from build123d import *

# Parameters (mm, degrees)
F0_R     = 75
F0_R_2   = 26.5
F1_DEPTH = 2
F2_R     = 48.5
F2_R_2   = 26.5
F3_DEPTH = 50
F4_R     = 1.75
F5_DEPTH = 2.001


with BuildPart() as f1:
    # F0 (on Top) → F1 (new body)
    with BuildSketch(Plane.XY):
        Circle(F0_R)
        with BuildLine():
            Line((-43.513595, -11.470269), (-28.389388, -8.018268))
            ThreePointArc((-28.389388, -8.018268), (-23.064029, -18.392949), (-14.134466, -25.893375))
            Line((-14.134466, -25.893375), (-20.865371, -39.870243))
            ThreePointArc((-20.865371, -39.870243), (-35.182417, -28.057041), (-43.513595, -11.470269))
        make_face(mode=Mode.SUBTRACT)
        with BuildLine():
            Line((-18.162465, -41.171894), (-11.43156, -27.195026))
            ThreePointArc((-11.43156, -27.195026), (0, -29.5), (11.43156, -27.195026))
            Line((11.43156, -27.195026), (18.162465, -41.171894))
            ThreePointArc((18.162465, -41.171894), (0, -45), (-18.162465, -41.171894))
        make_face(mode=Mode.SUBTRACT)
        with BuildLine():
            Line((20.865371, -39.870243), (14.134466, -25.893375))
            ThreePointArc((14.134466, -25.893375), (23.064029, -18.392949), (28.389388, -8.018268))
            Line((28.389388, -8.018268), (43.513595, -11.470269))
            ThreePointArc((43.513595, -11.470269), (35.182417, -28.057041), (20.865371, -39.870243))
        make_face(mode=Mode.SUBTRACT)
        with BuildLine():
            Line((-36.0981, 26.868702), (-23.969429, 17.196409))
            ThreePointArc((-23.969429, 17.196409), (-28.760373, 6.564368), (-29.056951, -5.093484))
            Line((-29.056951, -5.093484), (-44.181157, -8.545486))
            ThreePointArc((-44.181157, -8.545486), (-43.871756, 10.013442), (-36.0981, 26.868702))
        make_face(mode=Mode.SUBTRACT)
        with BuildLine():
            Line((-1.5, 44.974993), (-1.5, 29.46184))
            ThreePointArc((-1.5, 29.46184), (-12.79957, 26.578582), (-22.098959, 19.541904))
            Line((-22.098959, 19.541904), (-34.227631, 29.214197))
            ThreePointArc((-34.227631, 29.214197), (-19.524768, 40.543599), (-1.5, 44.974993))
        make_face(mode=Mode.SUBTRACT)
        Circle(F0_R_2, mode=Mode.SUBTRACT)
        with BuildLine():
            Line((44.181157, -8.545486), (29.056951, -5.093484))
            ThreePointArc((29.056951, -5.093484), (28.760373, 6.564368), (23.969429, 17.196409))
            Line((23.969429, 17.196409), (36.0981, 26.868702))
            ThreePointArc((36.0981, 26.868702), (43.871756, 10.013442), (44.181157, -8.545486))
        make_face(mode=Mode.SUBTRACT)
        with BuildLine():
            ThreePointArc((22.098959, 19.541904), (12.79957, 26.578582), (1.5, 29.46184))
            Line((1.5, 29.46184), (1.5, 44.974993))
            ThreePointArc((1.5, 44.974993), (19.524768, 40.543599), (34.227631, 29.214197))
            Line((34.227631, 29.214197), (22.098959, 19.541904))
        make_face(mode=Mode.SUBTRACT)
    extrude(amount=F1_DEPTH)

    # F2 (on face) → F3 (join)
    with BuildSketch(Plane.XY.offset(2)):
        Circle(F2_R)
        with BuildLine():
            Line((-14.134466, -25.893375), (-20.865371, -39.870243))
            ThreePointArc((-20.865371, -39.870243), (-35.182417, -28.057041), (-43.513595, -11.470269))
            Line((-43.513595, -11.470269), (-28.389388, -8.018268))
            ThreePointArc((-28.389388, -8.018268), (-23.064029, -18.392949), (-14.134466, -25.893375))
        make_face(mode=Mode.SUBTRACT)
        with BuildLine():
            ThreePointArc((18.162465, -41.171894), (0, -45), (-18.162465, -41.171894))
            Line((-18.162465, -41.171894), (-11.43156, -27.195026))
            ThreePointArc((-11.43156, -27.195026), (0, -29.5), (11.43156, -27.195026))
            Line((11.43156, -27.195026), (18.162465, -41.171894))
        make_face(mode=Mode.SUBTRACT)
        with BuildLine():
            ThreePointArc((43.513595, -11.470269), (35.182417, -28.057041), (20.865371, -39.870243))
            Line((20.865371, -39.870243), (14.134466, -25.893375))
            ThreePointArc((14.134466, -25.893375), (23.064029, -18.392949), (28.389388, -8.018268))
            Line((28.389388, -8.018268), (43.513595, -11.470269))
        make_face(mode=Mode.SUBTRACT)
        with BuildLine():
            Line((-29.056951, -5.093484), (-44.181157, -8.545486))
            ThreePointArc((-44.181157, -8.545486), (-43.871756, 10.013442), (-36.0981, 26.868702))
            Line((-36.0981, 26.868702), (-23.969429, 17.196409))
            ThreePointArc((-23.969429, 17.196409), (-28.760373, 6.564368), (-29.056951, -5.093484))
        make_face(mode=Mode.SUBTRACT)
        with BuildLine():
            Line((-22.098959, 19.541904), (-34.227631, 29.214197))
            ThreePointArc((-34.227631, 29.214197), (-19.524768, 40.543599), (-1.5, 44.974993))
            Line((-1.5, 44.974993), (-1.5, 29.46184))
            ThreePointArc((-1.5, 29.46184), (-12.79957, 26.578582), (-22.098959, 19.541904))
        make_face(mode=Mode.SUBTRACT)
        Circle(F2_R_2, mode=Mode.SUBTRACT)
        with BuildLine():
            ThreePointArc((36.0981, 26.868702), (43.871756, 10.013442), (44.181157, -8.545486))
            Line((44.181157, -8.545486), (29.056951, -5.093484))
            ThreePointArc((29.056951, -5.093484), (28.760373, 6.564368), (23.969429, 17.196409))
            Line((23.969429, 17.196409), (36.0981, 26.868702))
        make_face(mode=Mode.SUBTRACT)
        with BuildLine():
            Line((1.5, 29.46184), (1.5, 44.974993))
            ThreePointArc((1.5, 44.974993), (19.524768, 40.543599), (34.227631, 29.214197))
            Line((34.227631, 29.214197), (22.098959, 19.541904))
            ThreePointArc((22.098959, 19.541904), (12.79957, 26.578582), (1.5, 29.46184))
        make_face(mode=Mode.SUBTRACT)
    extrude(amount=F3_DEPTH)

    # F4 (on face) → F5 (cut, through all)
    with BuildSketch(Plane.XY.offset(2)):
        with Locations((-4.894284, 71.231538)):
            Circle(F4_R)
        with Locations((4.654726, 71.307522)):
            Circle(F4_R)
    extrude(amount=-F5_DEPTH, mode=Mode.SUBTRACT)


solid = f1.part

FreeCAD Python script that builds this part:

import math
import FreeCAD as App
import Part
import Sketcher
Q = App.Units.Quantity

doc = App.newDocument("Part")
body = doc.addObject("PartDesign::Body", "Body")

# Sketch on XY plane
sketch1 = body.newObject("Sketcher::SketchObject", "Sketch")
sketch1.AttachmentSupport = (doc.getObject("XY_Plane"), [""])
sketch1.MapMode = "FlatFace"
sketch1.addGeometry([
    Part.Circle(App.Vector(0, 0, 0), App.Vector(0, 0, 1), 75),  # 0
    Part.ArcOfCircle(Part.Circle(App.Vector(-0.000002, -0.000001, 0), App.Vector(0, 0, 1), 44.999998), math.radians(-165.232645), math.radians(-117.624497)),  # 1
    Part.LineSegment(App.Vector(-43.513595, -11.470269, 0), App.Vector(-28.389388, -8.018268, 0)),  # 2
    Part.ArcOfCircle(Part.Circle(App.Vector(-0.000003, -0.000003, 0), App.Vector(0, 0, 1), 29.499996), math.radians(-164.22826), math.radians(-118.628884)),  # 3
    Part.LineSegment(App.Vector(-14.134466, -25.893375, 0), App.Vector(-20.865371, -39.870243, 0)),  # 4
    Part.ArcOfCircle(Part.Circle(App.Vector(0, -0.000001, 0), App.Vector(0, 0, 1), 44.999999), math.radians(-113.804073), math.radians(-66.195927)),  # 5
    Part.LineSegment(App.Vector(-18.162465, -41.171894, 0), App.Vector(-11.43156, -27.195026, 0)),  # 6
    Part.ArcOfCircle(Part.Circle(App.Vector(0, 0.000001, 0), App.Vector(0, 0, 1), 29.500001), math.radians(-112.799684), math.radians(-67.200316)),  # 7
    Part.LineSegment(App.Vector(11.43156, -27.195026, 0), App.Vector(18.162465, -41.171894, 0)),  # 8
    Part.ArcOfCircle(Part.Circle(App.Vector(0.000002, -0.000001, 0), App.Vector(0, 0, 1), 44.999998), math.radians(-62.375503), math.radians(-14.767355)),  # 9
    Part.LineSegment(App.Vector(20.865371, -39.870243, 0), App.Vector(14.134466, -25.893375, 0)),  # 10
    Part.ArcOfCircle(Part.Circle(App.Vector(0.000003, -0.000003, 0), App.Vector(0, 0, 1), 29.499996), math.radians(-61.371116), math.radians(-15.77174)),  # 11
    Part.LineSegment(App.Vector(28.389388, -8.018268, 0), App.Vector(43.513595, -11.470269, 0)),  # 12
    Part.ArcOfCircle(Part.Circle(App.Vector(-0.000003, 0.000001, 0), App.Vector(0, 0, 1), 44.999996), math.radians(143.338783), math.radians(190.946932)),  # 13
    Part.LineSegment(App.Vector(-36.0981, 26.868702, 0), App.Vector(-23.969429, 17.196409, 0)),  # 14
    Part.ArcOfCircle(Part.Circle(App.Vector(0.000003, 0, 0), App.Vector(0, 0, 1), 29.500002), math.radians(144.343177), math.radians(189.94254)),  # 15
    Part.LineSegment(App.Vector(-29.056951, -5.093484, 0), App.Vector(-44.181157, -8.545486, 0)),  # 16
    Part.ArcOfCircle(Part.Circle(App.Vector(0.000001, -0.000003, 0), App.Vector(0, 0, 1), 45.000003), math.radians(91.910214), math.radians(139.518356)),  # 17
    Part.LineSegment(App.Vector(-1.5, 44.974993, 0), App.Vector(-1.5, 29.46184, 0)),  # 18
    Part.ArcOfCircle(Part.Circle(App.Vector(0, 0.000001, 0), App.Vector(0, 0, 1), 29.499999), math.radians(92.914601), math.radians(138.513971)),  # 19
    Part.LineSegment(App.Vector(-22.098959, 19.541904, 0), App.Vector(-34.227631, 29.214197, 0)),  # 20
    Part.Circle(App.Vector(0, 0, 0), App.Vector(0, 0, 1), 26.5),  # 21
    Part.ArcOfCircle(Part.Circle(App.Vector(0.000003, 0.000001, 0), App.Vector(0, 0, 1), 44.999996), math.radians(-10.946932), math.radians(36.661217)),  # 22
    Part.LineSegment(App.Vector(44.181157, -8.545486, 0), App.Vector(29.056951, -5.093484, 0)),  # 23
    Part.ArcOfCircle(Part.Circle(App.Vector(-0.000003, 0, 0), App.Vector(0, 0, 1), 29.500002), math.radians(-9.94254), math.radians(35.656823)),  # 24
    Part.LineSegment(App.Vector(23.969429, 17.196409, 0), App.Vector(36.0981, 26.868702, 0)),  # 25
    Part.LineSegment(App.Vector(34.227631, 29.214197, 0), App.Vector(22.098959, 19.541904, 0)),  # 26
    Part.ArcOfCircle(Part.Circle(App.Vector(0, 0.000001, 0), App.Vector(0, 0, 1), 29.499999), math.radians(41.486029), math.radians(87.085399)),  # 27
    Part.LineSegment(App.Vector(1.5, 29.46184, 0), App.Vector(1.5, 44.974993, 0)),  # 28
    Part.ArcOfCircle(Part.Circle(App.Vector(-0.000001, -0.000003, 0), App.Vector(0, 0, 1), 45.000003), math.radians(40.481644), math.radians(88.089786)),  # 29
], False)
sketch1.addConstraint([
    Sketcher.Constraint("Coincident", 1, 1, 2, 1),
    Sketcher.Constraint("Coincident", 2, 2, 3, 1),
    Sketcher.Constraint("Coincident", 3, 2, 4, 1),
    Sketcher.Constraint("Coincident", 4, 2, 1, 2),
    Sketcher.Constraint("Coincident", 5, 1, 6, 1),
    Sketcher.Constraint("Coincident", 6, 2, 7, 1),
    Sketcher.Constraint("Coincident", 7, 2, 8, 1),
    Sketcher.Constraint("Coincident", 8, 2, 5, 2),
    Sketcher.Constraint("Coincident", 9, 1, 10, 1),
    Sketcher.Constraint("Coincident", 10, 2, 11, 1),
    Sketcher.Constraint("Coincident", 11, 2, 12, 1),
    Sketcher.Constraint("Coincident", 12, 2, 9, 2),
    Sketcher.Constraint("Coincident", 13, 1, 14, 1),
    Sketcher.Constraint("Coincident", 14, 2, 15, 1),
    Sketcher.Constraint("Coincident", 15, 2, 16, 1),
    Sketcher.Constraint("Coincident", 16, 2, 13, 2),
    Sketcher.Constraint("Coincident", 17, 1, 18, 1),
    Sketcher.Constraint("Coincident", 18, 2, 19, 1),
    Sketcher.Constraint("Coincident", 19, 2, 20, 1),
    Sketcher.Constraint("Coincident", 20, 2, 17, 2),
    Sketcher.Constraint("Coincident", 22, 1, 23, 1),
    Sketcher.Constraint("Coincident", 23, 2, 24, 1),
    Sketcher.Constraint("Coincident", 24, 2, 25, 1),
    Sketcher.Constraint("Coincident", 25, 2, 22, 2),
    Sketcher.Constraint("Coincident", 26, 2, 27, 1),
    Sketcher.Constraint("Coincident", 27, 2, 28, 1),
    Sketcher.Constraint("Coincident", 28, 2, 29, 2),
    Sketcher.Constraint("Coincident", 29, 1, 26, 1),
    Sketcher.Constraint("Vertical", 18),
    Sketcher.Constraint("Vertical", 28),
    Sketcher.Constraint("Coincident", 0, 3, -1, 1),
    Sketcher.Constraint("Coincident", 1, 3, -1, 1),
    Sketcher.Constraint("Coincident", 3, 3, -1, 1),
    Sketcher.Constraint("Coincident", 5, 3, -1, 1),
    Sketcher.Constraint("Coincident", 7, 3, -1, 1),
    Sketcher.Constraint("Coincident", 9, 3, -1, 1),
    Sketcher.Constraint("Coincident", 11, 3, -1, 1),
    Sketcher.Constraint("Coincident", 13, 3, -1, 1),
    Sketcher.Constraint("Coincident", 15, 3, -1, 1),
    Sketcher.Constraint("Coincident", 17, 3, -1, 1),
    Sketcher.Constraint("Coincident", 19, 3, -1, 1),
    Sketcher.Constraint("Coincident", 21, 3, -1, 1),
    Sketcher.Constraint("Coincident", 22, 3, -1, 1),
    Sketcher.Constraint("Coincident", 24, 3, -1, 1),
    Sketcher.Constraint("Coincident", 27, 3, -1, 1),
    Sketcher.Constraint("Coincident", 29, 3, -1, 1),
    Sketcher.Constraint("Diameter", 0, Q("150 mm")),
    Sketcher.Constraint("Diameter", 21, Q("53 mm")),
    Sketcher.Constraint("Radius", 1, Q("44.999998 mm")),
    Sketcher.Constraint("Radius", 5, Q("44.999999 mm")),
    Sketcher.Constraint("Radius", 9, Q("44.999998 mm")),
    Sketcher.Constraint("Radius", 7, Q("29.500001 mm")),
    Sketcher.Constraint("Radius", 19, Q("29.499999 mm")),
    Sketcher.Constraint("Radius", 27, Q("29.499999 mm")),
    Sketcher.Constraint("DistanceX", 18, 2, 27, 2, Q("3 mm")),
    Sketcher.Constraint("DistanceX", 17, 1, -1, 1, Q("1.5 mm")),
    Sketcher.Constraint("Radius", 3, Q("29.499996 mm")),
    Sketcher.Constraint("Radius", 11, Q("29.499996 mm")),
    Sketcher.Constraint("Radius", 13, Q("44.999996 mm")),
    Sketcher.Constraint("Radius", 15, Q("29.500002 mm")),
    Sketcher.Constraint("Radius", 17, Q("45.000003 mm")),
    Sketcher.Constraint("Radius", 22, Q("44.999996 mm")),
    Sketcher.Constraint("Radius", 24, Q("29.500002 mm")),
    Sketcher.Constraint("Radius", 29, Q("45.000003 mm")),
    Sketcher.Constraint("DistanceY", 1, 1, 2, 2, Q("3.452001 mm")),
    Sketcher.Constraint("DistanceX", 5, 1, 3, 2, Q("4.027999 mm")),
    Sketcher.Constraint("DistanceX", 10, 2, 8, 2, Q("4.027999 mm")),
    Sketcher.Constraint("DistanceY", 12, 2, 11, 2, Q("3.452001 mm")),
    Sketcher.Constraint("DistanceY", 16, 2, 15, 2, Q("3.452002 mm")),
    Sketcher.Constraint("DistanceX", 13, 1, -1, 1, Q("36.0981 mm")),
    Sketcher.Constraint("DistanceX", -1, 1, 25, 2, Q("36.0981 mm")),
    Sketcher.Constraint("DistanceX", 24, 2, 29, 1, Q("10.258202 mm")),
    Sketcher.Constraint("DistanceY", 1, 1, -1, 1, Q("11.470269 mm")),
    Sketcher.Constraint("DistanceX", 4, 2, -1, 1, Q("20.865371 mm")),
    Sketcher.Constraint("DistanceX", 6, 2, -1, 1, Q("11.43156 mm")),
    Sketcher.Constraint("DistanceX", -1, 1, 7, 2, Q("11.43156 mm")),
    Sketcher.Constraint("DistanceX", -1, 1, 9, 1, Q("20.865371 mm")),
    Sketcher.Constraint("DistanceX", -1, 1, 11, 2, Q("28.389388 mm")),
    Sketcher.Constraint("DistanceX", 14, 2, -1, 1, Q("23.969429 mm")),
    Sketcher.Constraint("DistanceX", 15, 2, -1, 1, Q("29.056951 mm")),
    Sketcher.Constraint("DistanceX", 19, 2, -1, 1, Q("22.098959 mm")),
    Sketcher.Constraint("DistanceX", 20, 2, -1, 1, Q("34.227631 mm")),
    Sketcher.Constraint("DistanceX", -1, 1, 23, 2, Q("29.056951 mm")),
    Sketcher.Constraint("DistanceX", -1, 1, 24, 2, Q("23.969429 mm")),
    Sketcher.Constraint("DistanceX", -1, 1, 26, 2, Q("22.098959 mm")),
    Sketcher.Constraint("DistanceX", 2, 2, 3, 2, Q("14.254922 mm")),
    Sketcher.Constraint("DistanceY", 8, 2, 6, 2, Q("13.976868 mm")),
    Sketcher.Constraint("DistanceX", 11, 2, 22, 1, Q("15.791769 mm")),
])
pad1 = body.newObject("PartDesign::Pad", "Pad")
pad1.Profile = sketch1
pad1.Length = 2

# Sketch on XY plane
sketch2 = body.newObject("Sketcher::SketchObject", "Sketch001")
sketch2.AttachmentSupport = (doc.getObject("XY_Plane"), [""])
sketch2.MapMode = "FlatFace"
sketch2.AttachmentOffset = App.Placement(App.Vector(0, 0, 2), App.Rotation())
sketch2.addGeometry([
    Part.Circle(App.Vector(0, 0, 0), App.Vector(0, 0, 1), 48.5),  # 0
    Part.ArcOfCircle(Part.Circle(App.Vector(-0.000003, -0.000003, 0), App.Vector(0, 0, 1), 29.499996), math.radians(-164.22826), math.radians(-118.628884)),  # 1
    Part.LineSegment(App.Vector(-14.134466, -25.893375, 0), App.Vector(-20.865371, -39.870243, 0)),  # 2
    Part.ArcOfCircle(Part.Circle(App.Vector(-0.000002, -0.000001, 0), App.Vector(0, 0, 1), 44.999998), math.radians(-165.232645), math.radians(-117.624497)),  # 3
    Part.LineSegment(App.Vector(-43.513595, -11.470269, 0), App.Vector(-28.389388, -8.018268, 0)),  # 4
    Part.LineSegment(App.Vector(11.43156, -27.195026, 0), App.Vector(18.162465, -41.171894, 0)),  # 5
    Part.ArcOfCircle(Part.Circle(App.Vector(0, -0.000001, 0), App.Vector(0, 0, 1), 44.999999), math.radians(-113.804073), math.radians(-66.195927)),  # 6
    Part.LineSegment(App.Vector(-18.162465, -41.171894, 0), App.Vector(-11.43156, -27.195026, 0)),  # 7
    Part.ArcOfCircle(Part.Circle(App.Vector(0, 0.000001, 0), App.Vector(0, 0, 1), 29.500001), math.radians(-112.799684), math.radians(-67.200316)),  # 8
    Part.LineSegment(App.Vector(28.389388, -8.018268, 0), App.Vector(43.513595, -11.470269, 0)),  # 9
    Part.ArcOfCircle(Part.Circle(App.Vector(0.000002, -0.000001, 0), App.Vector(0, 0, 1), 44.999998), math.radians(-62.375503), math.radians(-14.767355)),  # 10
    Part.LineSegment(App.Vector(20.865371, -39.870243, 0), App.Vector(14.134466, -25.893375, 0)),  # 11
    Part.ArcOfCircle(Part.Circle(App.Vector(0.000003, -0.000003, 0), App.Vector(0, 0, 1), 29.499996), math.radians(-61.371116), math.radians(-15.77174)),  # 12
    Part.ArcOfCircle(Part.Circle(App.Vector(0.000003, 0, 0), App.Vector(0, 0, 1), 29.500002), math.radians(144.343177), math.radians(189.94254)),  # 13
    Part.LineSegment(App.Vector(-29.056951, -5.093484, 0), App.Vector(-44.181157, -8.545486, 0)),  # 14
    Part.ArcOfCircle(Part.Circle(App.Vector(-0.000003, 0.000001, 0), App.Vector(0, 0, 1), 44.999996), math.radians(143.338783), math.radians(190.946932)),  # 15
    Part.LineSegment(App.Vector(-36.0981, 26.868702, 0), App.Vector(-23.969429, 17.196409, 0)),  # 16
    Part.ArcOfCircle(Part.Circle(App.Vector(0, 0.000001, 0), App.Vector(0, 0, 1), 29.499999), math.radians(92.914601), math.radians(138.513971)),  # 17
    Part.LineSegment(App.Vector(-22.098959, 19.541904, 0), App.Vector(-34.227631, 29.214197, 0)),  # 18
    Part.ArcOfCircle(Part.Circle(App.Vector(0.000001, -0.000003, 0), App.Vector(0, 0, 1), 45.000003), math.radians(91.910214), math.radians(139.518356)),  # 19
    Part.LineSegment(App.Vector(-1.5, 44.974993, 0), App.Vector(-1.5, 29.46184, 0)),  # 20
    Part.Circle(App.Vector(0, 0, 0), App.Vector(0, 0, 1), 26.5),  # 21
    Part.LineSegment(App.Vector(23.969429, 17.196409, 0), App.Vector(36.0981, 26.868702, 0)),  # 22
    Part.ArcOfCircle(Part.Circle(App.Vector(0.000003, 0.000001, 0), App.Vector(0, 0, 1), 44.999996), math.radians(-10.946932), math.radians(36.661217)),  # 23
    Part.LineSegment(App.Vector(44.181157, -8.545486, 0), App.Vector(29.056951, -5.093484, 0)),  # 24
    Part.ArcOfCircle(Part.Circle(App.Vector(-0.000003, 0, 0), App.Vector(0, 0, 1), 29.500002), math.radians(-9.94254), math.radians(35.656823)),  # 25
    Part.ArcOfCircle(Part.Circle(App.Vector(0, 0.000001, 0), App.Vector(0, 0, 1), 29.499999), math.radians(41.486029), math.radians(87.085399)),  # 26
    Part.LineSegment(App.Vector(1.5, 29.46184, 0), App.Vector(1.5, 44.974993, 0)),  # 27
    Part.ArcOfCircle(Part.Circle(App.Vector(-0.000001, -0.000003, 0), App.Vector(0, 0, 1), 45.000003), math.radians(40.481644), math.radians(88.089786)),  # 28
    Part.LineSegment(App.Vector(34.227631, 29.214197, 0), App.Vector(22.098959, 19.541904, 0)),  # 29
], False)
sketch2.addConstraint([
    Sketcher.Constraint("Coincident", 1, 2, 2, 1),
    Sketcher.Constraint("Coincident", 2, 2, 3, 2),
    Sketcher.Constraint("Coincident", 3, 1, 4, 1),
    Sketcher.Constraint("Coincident", 4, 2, 1, 1),
    Sketcher.Constraint("Coincident", 5, 2, 6, 2),
    Sketcher.Constraint("Coincident", 6, 1, 7, 1),
    Sketcher.Constraint("Coincident", 7, 2, 8, 1),
    Sketcher.Constraint("Coincident", 8, 2, 5, 1),
    Sketcher.Constraint("Coincident", 9, 2, 10, 2),
    Sketcher.Constraint("Coincident", 10, 1, 11, 1),
    Sketcher.Constraint("Coincident", 11, 2, 12, 1),
    Sketcher.Constraint("Coincident", 12, 2, 9, 1),
    Sketcher.Constraint("Coincident", 13, 2, 14, 1),
    Sketcher.Constraint("Coincident", 14, 2, 15, 2),
    Sketcher.Constraint("Coincident", 15, 1, 16, 1),
    Sketcher.Constraint("Coincident", 16, 2, 13, 1),
    Sketcher.Constraint("Coincident", 17, 2, 18, 1),
    Sketcher.Constraint("Coincident", 18, 2, 19, 2),
    Sketcher.Constraint("Coincident", 19, 1, 20, 1),
    Sketcher.Constraint("Coincident", 20, 2, 17, 1),
    Sketcher.Constraint("Coincident", 22, 2, 23, 2),
    Sketcher.Constraint("Coincident", 23, 1, 24, 1),
    Sketcher.Constraint("Coincident", 24, 2, 25, 1),
    Sketcher.Constraint("Coincident", 25, 2, 22, 1),
    Sketcher.Constraint("Coincident", 26, 2, 27, 1),
    Sketcher.Constraint("Coincident", 27, 2, 28, 2),
    Sketcher.Constraint("Coincident", 28, 1, 29, 1),
    Sketcher.Constraint("Coincident", 29, 2, 26, 1),
    Sketcher.Constraint("Vertical", 20),
    Sketcher.Constraint("Vertical", 27),
    Sketcher.Constraint("Coincident", 0, 3, -1, 1),
    Sketcher.Constraint("Coincident", 1, 3, -1, 1),
    Sketcher.Constraint("Coincident", 3, 3, -1, 1),
    Sketcher.Constraint("Coincident", 6, 3, -1, 1),
    Sketcher.Constraint("Coincident", 8, 3, -1, 1),
    Sketcher.Constraint("Coincident", 10, 3, -1, 1),
    Sketcher.Constraint("Coincident", 12, 3, -1, 1),
    Sketcher.Constraint("Coincident", 13, 3, -1, 1),
    Sketcher.Constraint("Coincident", 15, 3, -1, 1),
    Sketcher.Constraint("Coincident", 17, 3, -1, 1),
    Sketcher.Constraint("Coincident", 19, 3, -1, 1),
    Sketcher.Constraint("Coincident", 21, 3, -1, 1),
    Sketcher.Constraint("Coincident", 23, 3, -1, 1),
    Sketcher.Constraint("Coincident", 25, 3, -1, 1),
    Sketcher.Constraint("Coincident", 26, 3, -1, 1),
    Sketcher.Constraint("Coincident", 28, 3, -1, 1),
    Sketcher.Constraint("Diameter", 0, Q("97 mm")),
    Sketcher.Constraint("Diameter", 21, Q("53 mm")),
    Sketcher.Constraint("Radius", 3, Q("44.999998 mm")),
    Sketcher.Constraint("Radius", 6, Q("44.999999 mm")),
    Sketcher.Constraint("Radius", 10, Q("44.999998 mm")),
    Sketcher.Constraint("Radius", 8, Q("29.500001 mm")),
    Sketcher.Constraint("Radius", 17, Q("29.499999 mm")),
    Sketcher.Constraint("Radius", 26, Q("29.499999 mm")),
    Sketcher.Constraint("DistanceX", 20, 2, 26, 2, Q("3 mm")),
    Sketcher.Constraint("DistanceX", 19, 1, -1, 1, Q("1.5 mm")),
    Sketcher.Constraint("Radius", 1, Q("29.499996 mm")),
    Sketcher.Constraint("Radius", 12, Q("29.499996 mm")),
    Sketcher.Constraint("Radius", 13, Q("29.500002 mm")),
    Sketcher.Constraint("Radius", 15, Q("44.999996 mm")),
    Sketcher.Constraint("Radius", 19, Q("45.000003 mm")),
    Sketcher.Constraint("Radius", 23, Q("44.999996 mm")),
    Sketcher.Constraint("Radius", 25, Q("29.500002 mm")),
    Sketcher.Constraint("Radius", 28, Q("45.000003 mm")),
    Sketcher.Constraint("DistanceY", 3, 1, 4, 2, Q("3.452001 mm")),
    Sketcher.Constraint("DistanceX", 6, 1, 1, 2, Q("4.027999 mm")),
    Sketcher.Constraint("DistanceX", 11, 2, 5, 2, Q("4.027999 mm")),
    Sketcher.Constraint("DistanceY", 9, 2, 12, 2, Q("3.452001 mm")),
    Sketcher.Constraint("DistanceY", 14, 2, 13, 2, Q("3.452002 mm")),
    Sketcher.Constraint("DistanceX", 15, 1, -1, 1, Q("36.0981 mm")),
    Sketcher.Constraint("DistanceX", -1, 1, 22, 2, Q("36.0981 mm")),
    Sketcher.Constraint("DistanceX", 25, 2, 28, 1, Q("10.258202 mm")),
    Sketcher.Constraint("DistanceX", 2, 2, -1, 1, Q("20.865371 mm")),
    Sketcher.Constraint("DistanceY", 3, 1, -1, 1, Q("11.470269 mm")),
    Sketcher.Constraint("DistanceX", 7, 2, -1, 1, Q("11.43156 mm")),
    Sketcher.Constraint("DistanceX", -1, 1, 8, 2, Q("11.43156 mm")),
    Sketcher.Constraint("DistanceY", 9, 2, -1, 1, Q("11.470269 mm")),
    Sketcher.Constraint("DistanceX", -1, 1, 10, 1, Q("20.865371 mm")),
    Sketcher.Constraint("DistanceX", 13, 2, -1, 1, Q("29.056951 mm")),
    Sketcher.Constraint("DistanceX", 16, 2, -1, 1, Q("23.969429 mm")),
    Sketcher.Constraint("DistanceX", 17, 2, -1, 1, Q("22.098959 mm")),
    Sketcher.Constraint("DistanceX", 18, 2, -1, 1, Q("34.227631 mm")),
    Sketcher.Constraint("DistanceX", -1, 1, 24, 2, Q("29.056951 mm")),
    Sketcher.Constraint("DistanceX", -1, 1, 25, 2, Q("23.969429 mm")),
    Sketcher.Constraint("DistanceX", -1, 1, 29, 2, Q("22.098959 mm")),
    Sketcher.Constraint("DistanceY", 1, 2, 1, 3, Q("25.893372 mm")),
    Sketcher.Constraint("DistanceX", 1, 2, 5, 2, Q("32.296931 mm")),
    Sketcher.Constraint("DistanceX", 12, 2, 23, 1, Q("15.791769 mm")),
])
pad2 = body.newObject("PartDesign::Pad", "Pad001")
pad2.Profile = sketch2
pad2.Length = 50

# Sketch on XY plane
sketch3 = body.newObject("Sketcher::SketchObject", "Sketch002")
sketch3.AttachmentSupport = (doc.getObject("XY_Plane"), [""])
sketch3.MapMode = "FlatFace"
sketch3.AttachmentOffset = App.Placement(App.Vector(0, 0, 2), App.Rotation())
sketch3.addGeometry([
    Part.Circle(App.Vector(-4.9, 71.2, 0), App.Vector(0, 0, 1), 1.8),
    Part.Circle(App.Vector(4.7, 71.3, 0), App.Vector(0, 0, 1), 1.8),
], False)
sketch3.addConstraint([
    Sketcher.Constraint("Equal", 0, 1),
    Sketcher.Constraint("Diameter", 0, Q("3.5 mm")),
    Sketcher.Constraint("DistanceY", -1, 1, 0, 3, Q("71.231538 mm")),
    Sketcher.Constraint("DistanceX", 0, 3, 1, 3, Q("9.54901 mm")),
    Sketcher.Constraint("DistanceX", 0, 3, -1, 1, Q("4.894284 mm")),
    Sketcher.Constraint("DistanceY", -1, 1, 1, 3, Q("71.307522 mm")),
])
pocket1 = body.newObject("PartDesign::Pocket", "Pocket")
pocket1.Profile = sketch3
pocket1.Type = "ThroughAll"

doc.recompute()
